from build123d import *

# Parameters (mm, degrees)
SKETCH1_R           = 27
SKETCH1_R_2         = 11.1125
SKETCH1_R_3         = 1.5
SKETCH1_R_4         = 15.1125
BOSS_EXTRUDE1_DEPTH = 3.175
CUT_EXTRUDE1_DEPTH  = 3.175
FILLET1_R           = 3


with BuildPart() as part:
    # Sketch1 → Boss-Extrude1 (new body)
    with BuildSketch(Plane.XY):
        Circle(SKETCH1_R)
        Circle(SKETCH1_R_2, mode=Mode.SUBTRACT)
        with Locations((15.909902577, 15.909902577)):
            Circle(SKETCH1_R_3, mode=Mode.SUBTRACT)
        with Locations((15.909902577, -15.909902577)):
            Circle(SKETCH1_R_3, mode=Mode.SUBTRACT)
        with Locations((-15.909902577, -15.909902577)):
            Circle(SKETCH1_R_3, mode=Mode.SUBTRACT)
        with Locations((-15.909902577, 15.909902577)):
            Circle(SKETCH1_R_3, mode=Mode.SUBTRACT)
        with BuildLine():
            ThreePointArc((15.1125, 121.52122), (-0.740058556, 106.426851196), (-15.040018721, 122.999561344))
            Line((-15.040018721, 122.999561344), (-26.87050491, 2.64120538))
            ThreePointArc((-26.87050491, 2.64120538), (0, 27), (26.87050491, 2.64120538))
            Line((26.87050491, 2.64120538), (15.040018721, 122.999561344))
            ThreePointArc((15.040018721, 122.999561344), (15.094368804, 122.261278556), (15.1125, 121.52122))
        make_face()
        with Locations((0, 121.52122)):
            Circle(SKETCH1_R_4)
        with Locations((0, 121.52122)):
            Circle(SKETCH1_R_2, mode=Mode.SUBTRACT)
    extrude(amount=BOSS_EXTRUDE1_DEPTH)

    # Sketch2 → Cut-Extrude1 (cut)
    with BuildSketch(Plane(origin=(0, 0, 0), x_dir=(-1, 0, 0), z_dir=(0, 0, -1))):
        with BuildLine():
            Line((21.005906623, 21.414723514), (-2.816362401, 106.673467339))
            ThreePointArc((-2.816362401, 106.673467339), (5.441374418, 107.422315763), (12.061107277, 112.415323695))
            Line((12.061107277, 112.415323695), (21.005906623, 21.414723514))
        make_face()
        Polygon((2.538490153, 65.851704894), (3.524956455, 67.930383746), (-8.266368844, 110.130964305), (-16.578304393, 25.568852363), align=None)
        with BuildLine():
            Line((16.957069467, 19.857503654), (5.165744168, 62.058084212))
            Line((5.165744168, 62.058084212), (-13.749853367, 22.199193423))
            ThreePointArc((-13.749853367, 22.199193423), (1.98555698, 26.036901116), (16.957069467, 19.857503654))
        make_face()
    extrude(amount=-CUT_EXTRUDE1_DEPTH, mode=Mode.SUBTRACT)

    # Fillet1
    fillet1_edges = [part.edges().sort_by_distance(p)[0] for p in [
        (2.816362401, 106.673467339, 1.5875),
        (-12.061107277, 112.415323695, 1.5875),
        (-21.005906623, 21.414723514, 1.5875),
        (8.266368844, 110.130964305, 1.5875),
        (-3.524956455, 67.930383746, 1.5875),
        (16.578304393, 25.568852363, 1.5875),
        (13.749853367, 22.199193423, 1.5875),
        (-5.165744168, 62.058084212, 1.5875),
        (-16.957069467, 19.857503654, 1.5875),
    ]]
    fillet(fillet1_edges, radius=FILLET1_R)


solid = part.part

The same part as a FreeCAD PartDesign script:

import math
import FreeCAD as App
import Part
import Sketcher

V = App.Vector


def edges_at(feature, points):
    """Names of the edges that pass closest to the given points."""
    edges = feature.Shape.Edges
    near = lambda p: min(range(len(edges)), key=lambda i: edges[i].distToShape(Part.Vertex(*p))[0])
    return sorted({f"Edge{near(p) + 1}" for p in points})


def add_polygon(sketch, points):
    """Adds a closed chain of lines whose ends are joined by coincident constraints."""
    first, n = sketch.GeometryCount, len(points)
    for a, b in zip(points, points[1:] + points[:1]):
        sketch.addGeometry(Part.LineSegment(App.Vector(*a, 0), App.Vector(*b, 0)), False)
    for i in range(n):
        sketch.addConstraint(Sketcher.Constraint("Coincident", first + i, 2, first + (i + 1) % n, 1))

doc = App.newDocument("Part")
body = doc.addObject("PartDesign::Body", "Body")

sketch1 = body.newObject("Sketcher::SketchObject", "Sketch")
sketch1.AttachmentSupport = (doc.getObject("XY_Plane"), [""])
sketch1.MapMode = "FlatFace"
sketch1.addGeometry(Part.LineSegment(V(26.9, 2.6, 0), V(15, 123, 0)), False)
sketch1.addGeometry(Part.ArcOfCircle(Part.Circle(V(0, 121.5, 0), V(0, 0, 1), 15.1), math.radians(6), math.radians(174)), False)
sketch1.addGeometry(Part.LineSegment(V(-15, 123, 0), V(-26.9, 2.6, 0)), False)
sketch1.addGeometry(Part.ArcOfCircle(Part.Circle(V(0, 0, 0), V(0, 0, 1), 27), math.radians(174), math.radians(366)), False)
sketch1.addGeometry(Part.Circle(V(-15.9, -15.9, 0), V(0, 0, 1), 1.5), False)
sketch1.addGeometry(Part.Circle(V(-15.9, 15.9, 0), V(0, 0, 1), 1.5), False)
sketch1.addGeometry(Part.Circle(V(0, 0, 0), V(0, 0, 1), 11.1), False)
sketch1.addGeometry(Part.Circle(V(15.9, -15.9, 0), V(0, 0, 1), 1.5), False)
sketch1.addGeometry(Part.Circle(V(15.9, 15.9, 0), V(0, 0, 1), 1.5), False)
sketch1.addGeometry(Part.Circle(V(0, 121.5, 0), V(0, 0, 1), 11.1), False)
sketch1.addConstraint(Sketcher.Constraint("Tangent", 0, 2, 1, 1))
sketch1.addConstraint(Sketcher.Constraint("Tangent", 1, 2, 2, 1))
sketch1.addConstraint(Sketcher.Constraint("Tangent", 2, 2, 3, 1))
sketch1.addConstraint(Sketcher.Constraint("Tangent", 3, 2, 0, 1))
sketch1.addConstraint(Sketcher.Constraint("Coincident", 3, 3, -1, 1))
sketch1.addConstraint(Sketcher.Constraint("Coincident", 6, 3, -1, 1))
sketch1.addConstraint(Sketcher.Constraint("Coincident", 9, 3, 1, 3))
sketch1.addConstraint(Sketcher.Constraint("Equal", 4, 5))
sketch1.addConstraint(Sketcher.Constraint("Equal", 5, 7))
sketch1.addConstraint(Sketcher.Constraint("Equal", 7, 8))
sketch1.addConstraint(Sketcher.Constraint("Equal", 6, 9))
sketch1.addConstraint(Sketcher.Constraint("Symmetric", 5, 3, 7, 3, -1, 1))
sketch1.addConstraint(Sketcher.Constraint("Symmetric", 4, 3, 8, 3, -1, 1))
sketch1.addConstraint(Sketcher.Constraint("Symmetric", 4, 3, 7, 3, -2))
sketch1.addConstraint(Sketcher.Constraint("PointOnObject", 1, 3, -2))
sketch1.addConstraint(Sketcher.Constraint("Diameter", 4, 3.0))
sketch1.addConstraint(Sketcher.Constraint("Radius", 3, 27.0))
sketch1.addConstraint(Sketcher.Constraint("Diameter", 6, 22.225))
sketch1.addConstraint(Sketcher.Constraint("Radius", 1, 15.1125))
sketch1.addConstraint(Sketcher.Constraint("Distance", 0, 120.93839))
sketch1.addConstraint(Sketcher.Constraint("DistanceY", 8, 3, 0, 2, 107.089659))
sketch1.addConstraint(Sketcher.Constraint("DistanceX", 5, 3, 0, 2, 30.949921))
pad1 = body.newObject("PartDesign::Pad", "Pad")
pad1.Profile = sketch1
pad1.Length = 3.175

sketch2 = body.newObject("Sketcher::SketchObject", "Sketch001")
sketch2.AttachmentSupport = (doc.getObject("XY_Plane"), [""])
sketch2.MapMode = "FlatFace"
sketch2.addGeometry(Part.LineSegment(V(2.8, 106.7, 0), V(-21, 21.4, 0)), False)
sketch2.addGeometry(Part.LineSegment(V(-21, 21.4, 0), V(-12.1, 112.4, 0)), False)
sketch2.addGeometry(Part.ArcOfCircle(Part.Circle(V(0, 121.5, 0), V(0, 0, 1), 15.1), math.radians(-143), math.radians(-79)), False)
add_polygon(sketch2, [(-2.5, 65.9), (-3.5, 67.9), (8.3, 110.1), (16.6, 25.6)])
sketch2.addGeometry(Part.LineSegment(V(-17, 19.9, 0), V(-5.2, 62.1, 0)), False)
sketch2.addGeometry(Part.LineSegment(V(-5.2, 62.1, 0), V(13.7, 22.2, 0)), False)
sketch2.addGeometry(Part.ArcOfCircle(Part.Circle(V(0, 0, 0), V(0, 0, 1), 26.1), math.radians(58), math.radians(130)), False)
sketch2.addConstraint(Sketcher.Constraint("Coincident", 0, 2, 1, 1))
sketch2.addConstraint(Sketcher.Constraint("Coincident", 1, 2, 2, 1))
sketch2.addConstraint(Sketcher.Constraint("Coincident", 2, 2, 0, 1))
sketch2.addConstraint(Sketcher.Constraint("Coincident", 7, 2, 8, 1))
sketch2.addConstraint(Sketcher.Constraint("Coincident", 8, 2, 9, 1))
sketch2.addConstraint(Sketcher.Constraint("Coincident", 9, 2, 7, 1))
sketch2.addConstraint(Sketcher.Constraint("Coincident", 9, 3, -1, 1))
sketch2.addConstraint(Sketcher.Constraint("PointOnObject", 2, 3, -2))
sketch2.addConstraint(Sketcher.Constraint("Parallel", 0, 4))
sketch2.addConstraint(Sketcher.Constraint("Parallel", 3, 6))
sketch2.addConstraint(Sketcher.Constraint("Parallel", 4, 7))
sketch2.addConstraint(Sketcher.Constraint("Parallel", 6, 8))
sketch2.addConstraint(Sketcher.Constraint("Equal", 4, 7))
sketch2.addConstraint(Sketcher.Constraint("Radius", 2, 15.1125))
sketch2.addConstraint(Sketcher.Constraint("Radius", 9, 26.1125))
sketch2.addConstraint(Sketcher.Constraint("DistanceX", 0, 2, 1, 2, 8.944799))
sketch2.addConstraint(Sketcher.Constraint("DistanceY", 0, 2, 1, 2, 91.0006))
sketch2.addConstraint(Sketcher.Constraint("DistanceY", 7, 2, 3, 2, 5.8723))
sketch2.addConstraint(Sketcher.Constraint("Distance", 4, 43.816941))
sketch2.addConstraint(Sketcher.Constraint("Distance", 6, 44.588788))
sketch2.addConstraint(Sketcher.Constraint("Distance", 8, 44.119508))
sketch2.addConstraint(Sketcher.Constraint("DistanceY", -1, 1, 2, 3, 121.52122))
sketch2.addConstraint(Sketcher.Constraint("DistanceX", -1, 1, 4, 2, 8.266369))
sketch2.addConstraint(Sketcher.Constraint("DistanceX", 6, 2, -1, 1, 2.53849))
sketch2.addConstraint(Sketcher.Constraint("DistanceX", 9, 2, -1, 1, 16.957069))
sketch2.addConstraint(Sketcher.Constraint("DistanceX", 1, 2, 2, 2, 14.87747))
sketch2.addConstraint(Sketcher.Constraint("DistanceX", 3, 2, 2, 2, 6.341319))
pocket1 = body.newObject("PartDesign::Pocket", "Pocket")
pocket1.Profile = sketch2
pocket1.Length = 3.175
pocket1.Reversed = True
doc.recompute()

fillet = body.newObject("PartDesign::Fillet", "Fillet")
fillet.Base = (pocket1, edges_at(pocket1, [
    (2.816, 106.673, 1.587),
    (-12.061, 112.415, 1.587),
    (-21.006, 21.415, 1.587),
    (8.266, 110.131, 1.587),
    (-3.525, 67.93, 1.587),
    (16.578, 25.569, 1.587),
    (13.75, 22.199, 1.587),
    (-5.166, 62.058, 1.587),
    (-16.957, 19.858, 1.587),
]))
fillet.Radius = 3

doc.recompute()
